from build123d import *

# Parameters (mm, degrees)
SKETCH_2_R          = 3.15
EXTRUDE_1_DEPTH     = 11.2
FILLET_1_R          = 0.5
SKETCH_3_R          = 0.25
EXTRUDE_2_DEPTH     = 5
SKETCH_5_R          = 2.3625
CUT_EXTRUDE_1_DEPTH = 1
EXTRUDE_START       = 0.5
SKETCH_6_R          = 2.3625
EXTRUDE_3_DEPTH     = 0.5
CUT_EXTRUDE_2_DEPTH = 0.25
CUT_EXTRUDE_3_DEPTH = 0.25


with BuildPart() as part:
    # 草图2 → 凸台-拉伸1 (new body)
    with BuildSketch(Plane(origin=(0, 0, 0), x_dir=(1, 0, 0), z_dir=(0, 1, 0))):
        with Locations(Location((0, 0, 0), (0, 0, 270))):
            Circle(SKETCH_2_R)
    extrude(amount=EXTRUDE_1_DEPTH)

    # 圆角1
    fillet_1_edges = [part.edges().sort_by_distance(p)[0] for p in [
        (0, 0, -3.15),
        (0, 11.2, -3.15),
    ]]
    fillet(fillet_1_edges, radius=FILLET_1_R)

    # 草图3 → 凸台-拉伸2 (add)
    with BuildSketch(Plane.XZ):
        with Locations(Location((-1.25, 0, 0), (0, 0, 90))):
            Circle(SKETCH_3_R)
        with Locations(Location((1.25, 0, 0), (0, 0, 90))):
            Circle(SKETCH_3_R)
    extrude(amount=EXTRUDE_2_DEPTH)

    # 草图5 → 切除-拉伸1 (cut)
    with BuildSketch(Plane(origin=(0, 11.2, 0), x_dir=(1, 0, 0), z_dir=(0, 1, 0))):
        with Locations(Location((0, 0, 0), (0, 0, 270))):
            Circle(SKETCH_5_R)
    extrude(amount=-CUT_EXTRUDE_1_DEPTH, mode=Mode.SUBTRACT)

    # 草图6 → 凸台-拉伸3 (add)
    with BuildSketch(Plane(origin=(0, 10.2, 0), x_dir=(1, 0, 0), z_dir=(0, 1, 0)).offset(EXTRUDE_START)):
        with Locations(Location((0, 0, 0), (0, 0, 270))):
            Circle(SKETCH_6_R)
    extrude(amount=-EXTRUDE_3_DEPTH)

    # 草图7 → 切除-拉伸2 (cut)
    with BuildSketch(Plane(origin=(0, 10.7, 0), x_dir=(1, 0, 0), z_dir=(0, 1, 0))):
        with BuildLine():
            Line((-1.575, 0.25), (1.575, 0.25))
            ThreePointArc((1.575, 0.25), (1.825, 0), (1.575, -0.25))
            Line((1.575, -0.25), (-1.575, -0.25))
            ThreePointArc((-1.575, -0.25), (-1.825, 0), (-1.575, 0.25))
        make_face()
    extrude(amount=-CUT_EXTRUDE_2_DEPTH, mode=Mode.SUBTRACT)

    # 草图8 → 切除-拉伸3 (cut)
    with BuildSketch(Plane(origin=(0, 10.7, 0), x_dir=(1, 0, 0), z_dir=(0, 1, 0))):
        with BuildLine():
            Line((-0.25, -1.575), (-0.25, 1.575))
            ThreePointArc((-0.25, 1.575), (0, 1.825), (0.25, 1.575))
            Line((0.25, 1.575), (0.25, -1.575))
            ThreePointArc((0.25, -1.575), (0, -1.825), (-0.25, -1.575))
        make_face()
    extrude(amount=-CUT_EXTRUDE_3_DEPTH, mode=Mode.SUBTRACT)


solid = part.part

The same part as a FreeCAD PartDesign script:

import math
import FreeCAD as App
import Part
import Sketcher
from FreeCAD import Vector


def edges_at(feature, points):
    """Names of the edges that pass closest to the given points."""
    edges = feature.Shape.Edges
    near = lambda p: min(range(len(edges)), key=lambda i: edges[i].distToShape(Part.Vertex(*p))[0])
    return sorted({f"Edge{near(p) + 1}" for p in points})

doc = App.newDocument("Part")
body = doc.addObject("PartDesign::Body", "Body")

sketch1 = body.newObject("Sketcher::SketchObject", "Sketch")
sketch1.AttachmentSupport = (doc.getObject("XZ_Plane"), [""])
sketch1.MapMode = "FlatFace"
sketch1.addGeometry(Part.Circle(Vector(0, 0, 0), Vector(0, 0, 1), 3.1), False)
sketch1.addConstraint([
    Sketcher.Constraint("Coincident", 0, 3, -1, 1),
    Sketcher.Constraint("Diameter", 0, 6.3),
])
pad1 = body.newObject("PartDesign::Pad", "Pad")
pad1.Profile = sketch1
pad1.Length = 11.2
pad1.Reversed = True
doc.recompute()

fillet = body.newObject("PartDesign::Fillet", "Fillet")
fillet.Base = (pad1, edges_at(pad1, [(0, 0, -3.15), (0, 11.2, -3.15)]))
fillet.Radius = 0.5

sketch2 = body.newObject("Sketcher::SketchObject", "Sketch001")
sketch2.AttachmentSupport = (doc.getObject("XZ_Plane"), [""])
sketch2.MapMode = "FlatFace"
sketch2.addGeometry([
    Part.Circle(Vector(-1.25, 0, 0), Vector(0, 0, 1), 0.25),
    Part.Circle(Vector(1.25, 0, 0), Vector(0, 0, 1), 0.25),
], False)
sketch2.addConstraint([
    Sketcher.Constraint("Equal", 0, 1),
    Sketcher.Constraint("Symmetric", 0, 3, 1, 3, -1, 1),
    Sketcher.Constraint("PointOnObject", 0, 3, -1),
    Sketcher.Constraint("Diameter", 0, 0.5),
    Sketcher.Constraint("DistanceX", 0, 3, 1, 3, 2.5),
])
pad2 = body.newObject("PartDesign::Pad", "Pad001")
pad2.Profile = sketch2
pad2.Length = 5

sketch3 = body.newObject("Sketcher::SketchObject", "Sketch002")
sketch3.AttachmentSupport = (doc.getObject("XZ_Plane"), [""])
sketch3.MapMode = "FlatFace"
sketch3.AttachmentOffset = App.Placement(Vector(0, 0, -11.2), App.Rotation())
sketch3.addGeometry(Part.Circle(Vector(0, 0, 0), Vector(0, 0, 1), 2.4), False)
sketch3.addConstraint([
    Sketcher.Constraint("Coincident", 0, 3, -1, 1),
    Sketcher.Constraint("Diameter", 0, 4.725),
])
pocket1 = body.newObject("PartDesign::Pocket", "Pocket")
pocket1.Profile = sketch3
pocket1.Length = 1
pocket1.Reversed = True

sketch4 = body.newObject("Sketcher::SketchObject", "Sketch003")
sketch4.AttachmentSupport = (doc.getObject("XZ_Plane"), [""])
sketch4.MapMode = "FlatFace"
sketch4.AttachmentOffset = App.Placement(Vector(0, 0, -10.7), App.Rotation())
sketch4.addGeometry(Part.Circle(Vector(0, 0, 0), Vector(0, 0, 1), 2.4), False)
sketch4.addConstraint([
    Sketcher.Constraint("Coincident", 0, 3, -1, 1),
    Sketcher.Constraint("Diameter", 0, 4.725),
])
pad3 = body.newObject("PartDesign::Pad", "Pad002")
pad3.Profile = sketch4
pad3.Length = 0.5

sketch5 = body.newObject("Sketcher::SketchObject", "Sketch004")
sketch5.AttachmentSupport = (doc.getObject("XZ_Plane"), [""])
sketch5.MapMode = "FlatFace"
sketch5.AttachmentOffset = App.Placement(Vector(0, 0, -10.7), App.Rotation())
sketch5.addGeometry([
    Part.LineSegment(Vector(1.57, -0.25, 0), Vector(-1.57, -0.25, 0)),
    Part.ArcOfCircle(Part.Circle(Vector(-1.57, 0, 0), Vector(0, 0, 1), 0.25), math.radians(90), math.radians(270)),
    Part.LineSegment(Vector(-1.57, 0.25, 0), Vector(1.57, 0.25, 0)),
    Part.ArcOfCircle(Part.Circle(Vector(1.57, 0, 0), Vector(0, 0, 1), 0.25), math.radians(-90), math.radians(90)),
], False)
sketch5.addConstraint([
    Sketcher.Constraint("Tangent", 0, 2, 1, 2),
    Sketcher.Constraint("Tangent", 1, 1, 2, 1),
    Sketcher.Constraint("Tangent", 2, 2, 3, 2),
    Sketcher.Constraint("Tangent", 3, 1, 0, 1),
    Sketcher.Constraint("Horizontal", 0),
    Sketcher.Constraint("Horizontal", 2),
    Sketcher.Constraint("Symmetric", 1, 3, 3, 3, -1, 1),
    Sketcher.Constraint("Radius", 1, 0.25),
    Sketcher.Constraint("DistanceX", 0, 2, 0, 1, 3.15),
])
pocket2 = body.newObject("PartDesign::Pocket", "Pocket001")
pocket2.Profile = sketch5
pocket2.Length = 0.25
pocket2.Reversed = True

sketch6 = body.newObject("Sketcher::SketchObject", "Sketch005")
sketch6.AttachmentSupport = (doc.getObject("XZ_Plane"), [""])
sketch6.MapMode = "FlatFace"
sketch6.AttachmentOffset = App.Placement(Vector(0, 0, -10.7), App.Rotation())
sketch6.addGeometry([
    Part.LineSegment(Vector(-0.25, -1.57, 0), Vector(-0.25, 1.57, 0)),
    Part.ArcOfCircle(Part.Circle(Vector(0, 1.57, 0), Vector(0, 0, 1), 0.25), math.radians(0), math.radians(180)),
    Part.LineSegment(Vector(0.25, 1.57, 0), Vector(0.25, -1.57, 0)),
    Part.ArcOfCircle(Part.Circle(Vector(0, -1.57, 0), Vector(0, 0, 1), 0.25), math.radians(180), math.radians(360)),
], False)
sketch6.addConstraint([
    Sketcher.Constraint("Tangent", 0, 2, 1, 2),
    Sketcher.Constraint("Tangent", 1, 1, 2, 1),
    Sketcher.Constraint("Tangent", 2, 2, 3, 2),
    Sketcher.Constraint("Tangent", 3, 1, 0, 1),
    Sketcher.Constraint("Vertical", 0),
    Sketcher.Constraint("Vertical", 2),
    Sketcher.Constraint("Symmetric", 1, 3, 3, 3, -1, 1),
    Sketcher.Constraint("Radius", 1, 0.25),
    Sketcher.Constraint("DistanceY", 0, 1, 0, 2, 3.15),
])
pocket3 = body.newObject("PartDesign::Pocket", "Pocket002")
pocket3.Profile = sketch6
pocket3.Length = 0.25
pocket3.Reversed = True

doc.recompute()
